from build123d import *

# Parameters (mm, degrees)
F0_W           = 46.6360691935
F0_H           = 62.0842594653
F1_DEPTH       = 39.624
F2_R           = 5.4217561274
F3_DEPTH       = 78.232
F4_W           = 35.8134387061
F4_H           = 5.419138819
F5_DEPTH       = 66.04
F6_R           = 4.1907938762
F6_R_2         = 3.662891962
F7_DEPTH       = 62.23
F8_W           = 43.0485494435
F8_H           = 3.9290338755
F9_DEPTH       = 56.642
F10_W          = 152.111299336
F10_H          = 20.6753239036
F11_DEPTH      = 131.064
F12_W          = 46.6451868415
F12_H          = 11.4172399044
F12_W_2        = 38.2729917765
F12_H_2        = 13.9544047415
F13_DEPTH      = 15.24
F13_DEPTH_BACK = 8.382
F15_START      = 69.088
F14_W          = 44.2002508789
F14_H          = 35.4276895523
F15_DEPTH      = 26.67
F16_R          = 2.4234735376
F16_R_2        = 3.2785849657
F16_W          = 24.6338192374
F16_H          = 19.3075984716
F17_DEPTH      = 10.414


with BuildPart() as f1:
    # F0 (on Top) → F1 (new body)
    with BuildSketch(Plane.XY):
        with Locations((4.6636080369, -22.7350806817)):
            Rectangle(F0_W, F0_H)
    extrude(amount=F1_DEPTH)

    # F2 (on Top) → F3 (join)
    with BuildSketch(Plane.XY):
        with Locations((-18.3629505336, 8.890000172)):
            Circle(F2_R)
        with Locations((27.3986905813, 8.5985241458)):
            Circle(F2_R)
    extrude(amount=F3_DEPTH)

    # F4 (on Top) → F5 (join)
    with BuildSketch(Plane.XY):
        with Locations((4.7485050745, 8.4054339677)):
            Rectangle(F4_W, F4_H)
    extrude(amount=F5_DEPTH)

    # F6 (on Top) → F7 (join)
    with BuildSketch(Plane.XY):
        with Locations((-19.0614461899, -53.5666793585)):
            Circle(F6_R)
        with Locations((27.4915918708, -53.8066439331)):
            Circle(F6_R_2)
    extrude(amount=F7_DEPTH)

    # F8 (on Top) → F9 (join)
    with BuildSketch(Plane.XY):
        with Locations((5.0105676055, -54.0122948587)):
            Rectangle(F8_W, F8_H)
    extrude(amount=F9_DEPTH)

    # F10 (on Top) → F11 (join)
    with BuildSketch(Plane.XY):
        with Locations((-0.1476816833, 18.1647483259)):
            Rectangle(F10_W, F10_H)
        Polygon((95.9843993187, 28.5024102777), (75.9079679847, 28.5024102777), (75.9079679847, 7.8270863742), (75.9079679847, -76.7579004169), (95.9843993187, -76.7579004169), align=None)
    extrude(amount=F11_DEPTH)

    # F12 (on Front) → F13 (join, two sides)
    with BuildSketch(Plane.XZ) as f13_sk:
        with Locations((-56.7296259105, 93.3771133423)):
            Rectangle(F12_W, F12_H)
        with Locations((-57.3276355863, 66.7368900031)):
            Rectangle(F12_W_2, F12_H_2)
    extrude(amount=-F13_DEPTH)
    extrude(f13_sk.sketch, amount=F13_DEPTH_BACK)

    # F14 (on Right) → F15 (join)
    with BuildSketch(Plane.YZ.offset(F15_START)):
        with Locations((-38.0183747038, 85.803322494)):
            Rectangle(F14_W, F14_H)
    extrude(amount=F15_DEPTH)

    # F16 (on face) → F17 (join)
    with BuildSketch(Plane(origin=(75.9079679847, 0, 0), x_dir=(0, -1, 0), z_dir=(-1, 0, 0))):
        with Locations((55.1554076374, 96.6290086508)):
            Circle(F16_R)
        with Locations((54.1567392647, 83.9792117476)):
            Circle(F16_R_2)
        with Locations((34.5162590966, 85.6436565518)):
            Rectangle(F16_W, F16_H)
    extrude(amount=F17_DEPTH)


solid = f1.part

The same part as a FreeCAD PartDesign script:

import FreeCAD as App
import Part
import Sketcher
from FreeCAD import Vector
Q = App.Units.Quantity

doc = App.newDocument("Part")
params = doc.addObject("Spreadsheet::Sheet", "Params")
for row, (alias, value) in enumerate([
    ("pad1_length", "1.56 in"),
    ("pad2_length", "3.08 in"),
    ("pad3_length", "2.6 in"),
    ("pad4_length", "2.45 in"),
    ("pad5_length", "2.23 in"),
    ("pad6_length", "5.16 in"),
    ("pad7_length", "0.6 in"),
    ("pad7_length2", "0.33 in"),
    ("pad8_length", "1.05 in"),
    ("pad9_length", "0.41 in"),
], start=1):
    params.set(f"A{row}", alias)
    params.set(f"B{row}", "=" + value)
    params.setAlias(f"B{row}", alias)

body = doc.addObject("PartDesign::Body", "Body")

# Sketch on XY plane
sketch1 = doc.addObject("Sketcher::SketchObject", "Sketch")
body.addObject(sketch1)
sketch1.AttachmentSupport = (doc.XY_Plane, [""])
sketch1.MapMode = "FlatFace"
sketch1.addGeometry([
    Part.LineSegment(Vector(-18.654427, 8.307049, 0), Vector(-18.654427, -53.77721, 0)),
    Part.LineSegment(Vector(-18.654427, -53.77721, 0), Vector(27.981643, -53.77721, 0)),
    Part.LineSegment(Vector(27.981643, -53.77721, 0), Vector(27.981643, 8.307049, 0)),
    Part.LineSegment(Vector(27.981643, 8.307049, 0), Vector(-18.654427, 8.307049, 0)),
], False)
sketch1.addConstraint([
    Sketcher.Constraint("Coincident", 0, 2, 1, 1),
    Sketcher.Constraint("Coincident", 1, 2, 2, 1),
    Sketcher.Constraint("Coincident", 2, 2, 3, 1),
    Sketcher.Constraint("Coincident", 3, 2, 0, 1),
    Sketcher.Constraint("Vertical", 0),
    Sketcher.Constraint("Horizontal", 1),
    Sketcher.Constraint("Vertical", 2),
    Sketcher.Constraint("Horizontal", 3),
    Sketcher.Constraint("DistanceX", 1, 1, 1, 2, Q("46.636069 mm")),
    Sketcher.Constraint("DistanceY", 0, 2, 0, 1, Q("62.084259 mm")),
    Sketcher.Constraint("DistanceY", 0, 2, -1, 1, Q("53.77721 mm")),
    Sketcher.Constraint("DistanceX", 0, 2, -1, 1, Q("18.654427 mm")),
])
pad1 = doc.addObject("PartDesign::Pad", "Pad")
body.addObject(pad1)
pad1.Profile = sketch1
pad1.setExpression("Length", "Params.pad1_length")

# Sketch on XY plane
sketch2 = doc.addObject("Sketcher::SketchObject", "Sketch001")
body.addObject(sketch2)
sketch2.AttachmentSupport = (doc.XY_Plane, [""])
sketch2.MapMode = "FlatFace"
sketch2.addGeometry([
    Part.Circle(Vector(-18.362951, 8.89, 0), Vector(0, 0, 1), 5.421756),
    Part.Circle(Vector(27.398691, 8.598524, 0), Vector(0, 0, 1), 5.421756),
], False)
sketch2.addConstraint([
    Sketcher.Constraint("Equal", 0, 1),
    Sketcher.Constraint("DistanceY", -1, 1, 0, 3, Q("0.35 in")),
    Sketcher.Constraint("Diameter", 0, Q("10.843512 mm")),
    Sketcher.Constraint("DistanceX", 0, 3, -1, 1, Q("18.362951 mm")),
    Sketcher.Constraint("DistanceX", -1, 1, 1, 3, Q("27.398691 mm")),
    Sketcher.Constraint("DistanceY", -1, 1, 1, 3, Q("8.598524 mm")),
])
pad2 = doc.addObject("PartDesign::Pad", "Pad001")
body.addObject(pad2)
pad2.Profile = sketch2
pad2.setExpression("Length", "Params.pad2_length")

# Sketch on XY plane
sketch3 = doc.addObject("Sketcher::SketchObject", "Sketch002")
body.addObject(sketch3)
sketch3.AttachmentSupport = (doc.XY_Plane, [""])
sketch3.MapMode = "FlatFace"
sketch3.addGeometry([
    Part.LineSegment(Vector(-13.158214, 11.115003, 0), Vector(-13.158214, 5.695865, 0)),
    Part.LineSegment(Vector(-13.158214, 5.695865, 0), Vector(22.655224, 5.695865, 0)),
    Part.LineSegment(Vector(22.655224, 5.695865, 0), Vector(22.655224, 11.115003, 0)),
    Part.LineSegment(Vector(22.655224, 11.115003, 0), Vector(-13.158214, 11.115003, 0)),
], False)
sketch3.addConstraint([
    Sketcher.Constraint("Coincident", 0, 2, 1, 1),
    Sketcher.Constraint("Coincident", 1, 2, 2, 1),
    Sketcher.Constraint("Coincident", 2, 2, 3, 1),
    Sketcher.Constraint("Coincident", 3, 2, 0, 1),
    Sketcher.Constraint("Vertical", 0),
    Sketcher.Constraint("Horizontal", 1),
    Sketcher.Constraint("Vertical", 2),
    Sketcher.Constraint("Horizontal", 3),
    Sketcher.Constraint("DistanceX", 1, 1, 1, 2, Q("35.813439 mm")),
    Sketcher.Constraint("DistanceY", 0, 2, 0, 1, Q("5.419139 mm")),
    Sketcher.Constraint("DistanceX", 0, 2, -1, 1, Q("13.158214 mm")),
    Sketcher.Constraint("DistanceY", -1, 1, 0, 2, Q("5.695865 mm")),
])
pad3 = doc.addObject("PartDesign::Pad", "Pad002")
body.addObject(pad3)
pad3.Profile = sketch3
pad3.setExpression("Length", "Params.pad3_length")

# Sketch on XY plane
sketch4 = doc.addObject("Sketcher::SketchObject", "Sketch003")
body.addObject(sketch4)
sketch4.AttachmentSupport = (doc.XY_Plane, [""])
sketch4.MapMode = "FlatFace"
sketch4.addGeometry([
    Part.Circle(Vector(-19.061446, -53.566679, 0), Vector(0, 0, 1), 4.190794),
    Part.Circle(Vector(27.491592, -53.806644, 0), Vector(0, 0, 1), 3.662892),
], False)
sketch4.addConstraint([
    Sketcher.Constraint("Diameter", 0, Q("8.381588 mm")),
    Sketcher.Constraint("Diameter", 1, Q("7.325784 mm")),
    Sketcher.Constraint("DistanceY", 0, 3, -1, 1, Q("53.566679 mm")),
    Sketcher.Constraint("DistanceX", -1, 1, 1, 3, Q("27.491592 mm")),
    Sketcher.Constraint("DistanceX", 0, 3, 1, 3, Q("46.553038 mm")),
    Sketcher.Constraint("DistanceY", 1, 3, -1, 1, Q("53.806644 mm")),
])
pad4 = doc.addObject("PartDesign::Pad", "Pad003")
body.addObject(pad4)
pad4.Profile = sketch4
pad4.setExpression("Length", "Params.pad4_length")

# Sketch on XY plane
sketch5 = doc.addObject("Sketcher::SketchObject", "Sketch004")
body.addObject(sketch5)
sketch5.AttachmentSupport = (doc.XY_Plane, [""])
sketch5.MapMode = "FlatFace"
sketch5.addGeometry([
    Part.LineSegment(Vector(-16.513707, -52.047778, 0), Vector(-16.513707, -55.976812, 0)),
    Part.LineSegment(Vector(-16.513707, -55.976812, 0), Vector(26.534842, -55.976812, 0)),
    Part.LineSegment(Vector(26.534842, -55.976812, 0), Vector(26.534842, -52.047778, 0)),
    Part.LineSegment(Vector(26.534842, -52.047778, 0), Vector(-16.513707, -52.047778, 0)),
], False)
sketch5.addConstraint([
    Sketcher.Constraint("Coincident", 0, 2, 1, 1),
    Sketcher.Constraint("Coincident", 1, 2, 2, 1),
    Sketcher.Constraint("Coincident", 2, 2, 3, 1),
    Sketcher.Constraint("Coincident", 3, 2, 0, 1),
    Sketcher.Constraint("Vertical", 0),
    Sketcher.Constraint("Horizontal", 1),
    Sketcher.Constraint("Vertical", 2),
    Sketcher.Constraint("Horizontal", 3),
    Sketcher.Constraint("DistanceX", 1, 1, 1, 2, Q("43.048549 mm")),
    Sketcher.Constraint("DistanceY", 0, 2, 0, 1, Q("3.929034 mm")),
    Sketcher.Constraint("DistanceY", 0, 2, -1, 1, Q("55.976812 mm")),
    Sketcher.Constraint("DistanceX", 0, 2, -1, 1, Q("16.513707 mm")),
])
pad5 = doc.addObject("PartDesign::Pad", "Pad004")
body.addObject(pad5)
pad5.Profile = sketch5
pad5.setExpression("Length", "Params.pad5_length")

# Sketch on XY plane
sketch6 = doc.addObject("Sketcher::SketchObject", "Sketch005")
body.addObject(sketch6)
sketch6.AttachmentSupport = (doc.XY_Plane, [""])
sketch6.MapMode = "FlatFace"
sketch6.addGeometry([
    Part.LineSegment(Vector(-76.203331, 28.50241, 0), Vector(-76.203331, 7.827086, 0)),  # 0
    Part.LineSegment(Vector(-76.203331, 7.827086, 0), Vector(75.907968, 7.827086, 0)),  # 1
    Part.LineSegment(Vector(75.907968, 7.827086, 0), Vector(75.907968, -76.7579, 0)),  # 2
    Part.LineSegment(Vector(75.907968, -76.7579, 0), Vector(95.984399, -76.7579, 0)),  # 3
    Part.LineSegment(Vector(95.984399, -76.7579, 0), Vector(95.984399, 28.50241, 0)),  # 4
    Part.LineSegment(Vector(95.984399, 28.50241, 0), Vector(-76.203331, 28.50241, 0)),  # 5
], False)
sketch6.addConstraint([
    Sketcher.Constraint("Coincident", 0, 2, 1, 1),
    Sketcher.Constraint("Coincident", 1, 2, 2, 1),
    Sketcher.Constraint("Coincident", 2, 2, 3, 1),
    Sketcher.Constraint("Coincident", 3, 2, 4, 1),
    Sketcher.Constraint("Coincident", 4, 2, 5, 1),
    Sketcher.Constraint("Coincident", 5, 2, 0, 1),
    Sketcher.Constraint("Vertical", 0),
    Sketcher.Constraint("Horizontal", 1),
    Sketcher.Constraint("Vertical", 2),
    Sketcher.Constraint("Horizontal", 3),
    Sketcher.Constraint("Vertical", 4),
    Sketcher.Constraint("Horizontal", 5),
    Sketcher.Constraint("DistanceX", 1, 1, 1, 2, Q("152.111299 mm")),
    Sketcher.Constraint("DistanceX", 3, 1, 3, 2, Q("20.076431 mm")),
    Sketcher.Constraint("DistanceY", 4, 1, 4, 2, Q("105.260311 mm")),
    Sketcher.Constraint("DistanceY", 2, 2, -1, 1, Q("76.7579 mm")),
    Sketcher.Constraint("DistanceX", -1, 1, 3, 2, Q("95.984399 mm")),
    Sketcher.Constraint("DistanceY", 0, 2, 0, 1, Q("20.675324 mm")),
])
pad6 = doc.addObject("PartDesign::Pad", "Pad005")
body.addObject(pad6)
pad6.Profile = sketch6
pad6.setExpression("Length", "Params.pad6_length")

# Sketch on XZ plane
sketch7 = doc.addObject("Sketcher::SketchObject", "Sketch006")
body.addObject(sketch7)
sketch7.AttachmentSupport = (doc.XZ_Plane, [""])
sketch7.MapMode = "FlatFace"
sketch7.addGeometry([
    Part.LineSegment(Vector(-80.052219, 99.085733, 0), Vector(-80.052219, 87.668493, 0)),  # 0
    Part.LineSegment(Vector(-80.052219, 87.668493, 0), Vector(-33.407032, 87.668493, 0)),  # 1
    Part.LineSegment(Vector(-33.407032, 87.668493, 0), Vector(-33.407032, 99.085733, 0)),  # 2
    Part.LineSegment(Vector(-33.407032, 99.085733, 0), Vector(-80.052219, 99.085733, 0)),  # 3
    Part.LineSegment(Vector(-76.464131, 73.714092, 0), Vector(-76.464131, 59.759688, 0)),  # 4
    Part.LineSegment(Vector(-76.464131, 59.759688, 0), Vector(-38.19114, 59.759688, 0)),  # 5
    Part.LineSegment(Vector(-38.19114, 59.759688, 0), Vector(-38.19114, 73.714092, 0)),  # 6
    Part.LineSegment(Vector(-38.19114, 73.714092, 0), Vector(-76.464131, 73.714092, 0)),  # 7
], False)
sketch7.addConstraint([
    Sketcher.Constraint("Coincident", 0, 2, 1, 1),
    Sketcher.Constraint("Coincident", 1, 2, 2, 1),
    Sketcher.Constraint("Coincident", 2, 2, 3, 1),
    Sketcher.Constraint("Coincident", 3, 2, 0, 1),
    Sketcher.Constraint("Coincident", 4, 2, 5, 1),
    Sketcher.Constraint("Coincident", 5, 2, 6, 1),
    Sketcher.Constraint("Coincident", 6, 2, 7, 1),
    Sketcher.Constraint("Coincident", 7, 2, 4, 1),
    Sketcher.Constraint("Vertical", 0),
    Sketcher.Constraint("Horizontal", 1),
    Sketcher.Constraint("Vertical", 2),
    Sketcher.Constraint("Horizontal", 3),
    Sketcher.Constraint("Vertical", 4),
    Sketcher.Constraint("Horizontal", 5),
    Sketcher.Constraint("Vertical", 6),
    Sketcher.Constraint("Horizontal", 7),
    Sketcher.Constraint("DistanceX", 5, 1, 5, 2, Q("38.272992 mm")),
    Sketcher.Constraint("DistanceY", 0, 2, 0, 1, Q("11.41724 mm")),
    Sketcher.Constraint("DistanceX", 4, 2, 1, 2, Q("43.057099 mm")),
    Sketcher.Constraint("DistanceY", 6, 2, 1, 2, Q("13.954401 mm")),
    Sketcher.Constraint("DistanceX", 1, 1, 1, 2, Q("46.645187 mm")),
    Sketcher.Constraint("DistanceY", 4, 2, 4, 1, Q("13.954405 mm")),
    Sketcher.Constraint("DistanceX", 0, 2, -1, 1, Q("80.052219 mm")),
    Sketcher.Constraint("DistanceY", -1, 1, 0, 2, Q("87.668493 mm")),
])
pad7 = doc.addObject("PartDesign::Pad", "Pad006")
body.addObject(pad7)
pad7.Profile = sketch7
pad7.Type = "TwoLengths"
pad7.setExpression("Length", "Params.pad7_length")
pad7.setExpression("Length2", "Params.pad7_length2")
pad7.Reversed = True

# Sketch on YZ plane
sketch8 = doc.addObject("Sketcher::SketchObject", "Sketch007")
body.addObject(sketch8)
sketch8.AttachmentSupport = (doc.YZ_Plane, [""])
sketch8.MapMode = "FlatFace"
sketch8.AttachmentOffset = App.Placement(Vector(0, 0, 2.72 * 25.4), App.Rotation())
sketch8.addGeometry([
    Part.LineSegment(Vector(-60.1185, 103.517167, 0), Vector(-60.1185, 68.089478, 0)),
    Part.LineSegment(Vector(-60.1185, 68.089478, 0), Vector(-15.918249, 68.089478, 0)),
    Part.LineSegment(Vector(-15.918249, 68.089478, 0), Vector(-15.918249, 103.517167, 0)),
    Part.LineSegment(Vector(-15.918249, 103.517167, 0), Vector(-60.1185, 103.517167, 0)),
], False)
sketch8.addConstraint([
    Sketcher.Constraint("Coincident", 0, 2, 1, 1),
    Sketcher.Constraint("Coincident", 1, 2, 2, 1),
    Sketcher.Constraint("Coincident", 2, 2, 3, 1),
    Sketcher.Constraint("Coincident", 3, 2, 0, 1),
    Sketcher.Constraint("Vertical", 0),
    Sketcher.Constraint("Horizontal", 1),
    Sketcher.Constraint("Vertical", 2),
    Sketcher.Constraint("Horizontal", 3),
    Sketcher.Constraint("DistanceX", 1, 1, 1, 2, Q("44.200251 mm")),
    Sketcher.Constraint("DistanceY", 0, 2, 0, 1, Q("35.42769 mm")),
    Sketcher.Constraint("DistanceX", 0, 2, -1, 1, Q("60.1185 mm")),
    Sketcher.Constraint("DistanceY", -1, 1, 0, 2, Q("68.089478 mm")),
])
pad8 = doc.addObject("PartDesign::Pad", "Pad007")
body.addObject(pad8)
pad8.Profile = sketch8
pad8.setExpression("Length", "Params.pad8_length")

# Sketch on YZ plane
sketch9 = doc.addObject("Sketcher::SketchObject", "Sketch008")
body.addObject(sketch9)
sketch9.AttachmentSupport = (doc.YZ_Plane, [""])
sketch9.MapMode = "FlatFace"
sketch9.AttachmentOffset = App.Placement(Vector(0, 0, 75.907968), App.Rotation())
sketch9.addGeometry([
    Part.Circle(Vector(-55.155408, 96.629009, 0), Vector(0, 0, 1), 2.423474),  # 0
    Part.Circle(Vector(-54.156739, 83.979212, 0), Vector(0, 0, 1), 3.278585),  # 1
    Part.LineSegment(Vector(-22.199349, 95.297456, 0), Vector(-22.199349, 75.989857, 0)),  # 2
    Part.LineSegment(Vector(-22.199349, 75.989857, 0), Vector(-46.833169, 75.989857, 0)),  # 3
    Part.LineSegment(Vector(-46.833169, 75.989857, 0), Vector(-46.833169, 95.297456, 0)),  # 4
    Part.LineSegment(Vector(-46.833169, 95.297456, 0), Vector(-22.199349, 95.297456, 0)),  # 5
], False)
sketch9.addConstraint([
    Sketcher.Constraint("Coincident", 2, 2, 3, 1),
    Sketcher.Constraint("Coincident", 3, 2, 4, 1),
    Sketcher.Constraint("Coincident", 4, 2, 5, 1),
    Sketcher.Constraint("Coincident", 5, 2, 2, 1),
    Sketcher.Constraint("Vertical", 2),
    Sketcher.Constraint("Horizontal", 3),
    Sketcher.Constraint("Vertical", 4),
    Sketcher.Constraint("Horizontal", 5),
    Sketcher.Constraint("Diameter", 1, Q("6.55717 mm")),
    Sketcher.Constraint("Diameter", 0, Q("4.846947 mm")),
    Sketcher.Constraint("DistanceY", 2, 2, 2, 1, Q("19.307598 mm")),
    Sketcher.Constraint("DistanceY", 1, 3, 4, 2, Q("0.4456002 in")),
    Sketcher.Constraint("DistanceX", 3, 2, 3, 1, Q("24.633819 mm")),
    Sketcher.Constraint("DistanceY", -1, 1, 0, 3, Q("96.629009 mm")),
    Sketcher.Constraint("DistanceX", 1, 3, -1, 1, Q("54.156739 mm")),
    Sketcher.Constraint("DistanceY", -1, 1, 1, 3, Q("83.979212 mm")),
    Sketcher.Constraint("DistanceX", 2, 2, -1, 1, Q("22.199349 mm")),
    Sketcher.Constraint("DistanceX", 0, 3, 1, 3, Q("0.998668 mm")),
])
pad9 = doc.addObject("PartDesign::Pad", "Pad008")
body.addObject(pad9)
pad9.Profile = sketch9
pad9.setExpression("Length", "Params.pad9_length")
pad9.Reversed = True

doc.recompute()
